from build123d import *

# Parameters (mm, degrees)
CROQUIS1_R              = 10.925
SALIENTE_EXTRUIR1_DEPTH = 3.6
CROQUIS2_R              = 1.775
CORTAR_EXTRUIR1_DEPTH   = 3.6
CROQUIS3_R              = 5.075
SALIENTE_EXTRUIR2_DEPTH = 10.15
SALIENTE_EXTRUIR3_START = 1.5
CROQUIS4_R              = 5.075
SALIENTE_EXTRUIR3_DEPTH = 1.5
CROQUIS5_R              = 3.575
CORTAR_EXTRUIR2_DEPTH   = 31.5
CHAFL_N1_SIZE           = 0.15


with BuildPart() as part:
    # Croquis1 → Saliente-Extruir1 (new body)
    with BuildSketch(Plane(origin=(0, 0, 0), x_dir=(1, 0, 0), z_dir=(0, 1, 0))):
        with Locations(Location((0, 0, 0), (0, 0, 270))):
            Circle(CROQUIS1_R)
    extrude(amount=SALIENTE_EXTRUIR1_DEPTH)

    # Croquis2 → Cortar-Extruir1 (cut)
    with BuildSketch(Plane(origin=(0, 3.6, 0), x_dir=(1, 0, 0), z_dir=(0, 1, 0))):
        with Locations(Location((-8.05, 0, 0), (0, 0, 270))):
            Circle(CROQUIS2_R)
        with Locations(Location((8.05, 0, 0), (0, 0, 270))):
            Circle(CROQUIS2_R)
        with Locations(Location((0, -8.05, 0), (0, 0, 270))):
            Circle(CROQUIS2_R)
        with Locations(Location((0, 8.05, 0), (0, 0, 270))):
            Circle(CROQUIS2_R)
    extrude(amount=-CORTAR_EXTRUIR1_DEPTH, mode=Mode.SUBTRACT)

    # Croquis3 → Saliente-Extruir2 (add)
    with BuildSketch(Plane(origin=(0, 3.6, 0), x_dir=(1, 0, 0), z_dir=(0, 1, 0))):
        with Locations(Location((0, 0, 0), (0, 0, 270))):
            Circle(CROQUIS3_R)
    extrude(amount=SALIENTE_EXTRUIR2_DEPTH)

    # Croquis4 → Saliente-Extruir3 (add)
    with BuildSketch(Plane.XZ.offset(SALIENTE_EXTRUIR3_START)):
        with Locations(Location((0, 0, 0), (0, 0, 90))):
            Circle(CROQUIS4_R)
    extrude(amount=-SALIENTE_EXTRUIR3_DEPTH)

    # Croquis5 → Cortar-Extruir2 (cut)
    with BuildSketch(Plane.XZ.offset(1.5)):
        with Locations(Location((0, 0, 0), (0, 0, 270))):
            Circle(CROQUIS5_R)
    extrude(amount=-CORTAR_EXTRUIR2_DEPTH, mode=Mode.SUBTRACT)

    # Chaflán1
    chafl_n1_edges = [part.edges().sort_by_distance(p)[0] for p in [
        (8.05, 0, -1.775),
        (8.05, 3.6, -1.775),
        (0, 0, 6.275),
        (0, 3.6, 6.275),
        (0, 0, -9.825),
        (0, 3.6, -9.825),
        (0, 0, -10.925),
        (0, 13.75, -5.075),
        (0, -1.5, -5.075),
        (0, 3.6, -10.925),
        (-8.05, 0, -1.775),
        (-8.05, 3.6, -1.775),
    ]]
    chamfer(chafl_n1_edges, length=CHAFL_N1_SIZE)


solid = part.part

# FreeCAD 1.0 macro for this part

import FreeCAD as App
import Part
import Sketcher
from FreeCAD import Vector


def edges_at(feature, points):
    """Names of the edges that pass closest to the given points."""
    edges = feature.Shape.Edges
    near = lambda p: min(range(len(edges)), key=lambda i: edges[i].distToShape(Part.Vertex(*p))[0])
    return sorted({f"Edge{near(p) + 1}" for p in points})

doc = App.newDocument("Part")
body = doc.addObject("PartDesign::Body", "Body")

sketch1 = body.newObject("Sketcher::SketchObject", "Sketch")
sketch1.AttachmentSupport = (doc.getObject("XZ_Plane"), [""])
sketch1.MapMode = "FlatFace"
sketch1.addGeometry(Part.Circle(Vector(0, 0, 0), Vector(0, 0, 1), 11), False)
sketch1.addConstraint(Sketcher.Constraint("Coincident", 0, 3, -1, 1))
sketch1.addConstraint(Sketcher.Constraint("Diameter", 0, 21.85))
pad1 = body.newObject("PartDesign::Pad", "Pad")
pad1.Profile = sketch1
pad1.Length = 3.6
pad1.Reversed = True

sketch2 = body.newObject("Sketcher::SketchObject", "Sketch001")
sketch2.AttachmentSupport = (doc.getObject("XZ_Plane"), [""])
sketch2.MapMode = "FlatFace"
sketch2.AttachmentOffset = App.Placement(Vector(0, 0, -3.6), App.Rotation())
sketch2.addGeometry(Part.Circle(Vector(-8.1, 0, 0), Vector(0, 0, 1), 1.8), False)
sketch2.addGeometry(Part.Circle(Vector(8.1, 0, 0), Vector(0, 0, 1), 1.8), False)
sketch2.addGeometry(Part.Circle(Vector(0, 8.1, 0), Vector(0, 0, 1), 1.8), False)
sketch2.addGeometry(Part.Circle(Vector(0, -8.1, 0), Vector(0, 0, 1), 1.8), False)
sketch2.addConstraint(Sketcher.Constraint("Equal", 0, 1))
sketch2.addConstraint(Sketcher.Constraint("Equal", 1, 2))
sketch2.addConstraint(Sketcher.Constraint("Equal", 2, 3))
sketch2.addConstraint(Sketcher.Constraint("Symmetric", 0, 3, 1, 3, -1, 1))
sketch2.addConstraint(Sketcher.Constraint("Symmetric", 2, 3, 3, 3, -1, 1))
sketch2.addConstraint(Sketcher.Constraint("PointOnObject", 0, 3, -1))
sketch2.addConstraint(Sketcher.Constraint("PointOnObject", 2, 3, -2))
sketch2.addConstraint(Sketcher.Constraint("Diameter", 0, 3.55))
sketch2.addConstraint(Sketcher.Constraint("DistanceX", 0, 3, 1, 3, 16.1))
sketch2.addConstraint(Sketcher.Constraint("DistanceY", 3, 3, 2, 3, 16.1))
pocket1 = body.newObject("PartDesign::Pocket", "Pocket")
pocket1.Profile = sketch2
pocket1.Length = 3.6
pocket1.Reversed = True

sketch3 = body.newObject("Sketcher::SketchObject", "Sketch002")
sketch3.AttachmentSupport = (doc.getObject("XZ_Plane"), [""])
sketch3.MapMode = "FlatFace"
sketch3.AttachmentOffset = App.Placement(Vector(0, 0, -3.6), App.Rotation())
sketch3.addGeometry(Part.Circle(Vector(0, 0, 0), Vector(0, 0, 1), 5), False)
sketch3.addConstraint(Sketcher.Constraint("Coincident", 0, 3, -1, 1))
sketch3.addConstraint(Sketcher.Constraint("Diameter", 0, 10.15))
pad2 = body.newObject("PartDesign::Pad", "Pad001")
pad2.Profile = sketch3
pad2.Length = 10.15
pad2.Reversed = True

sketch4 = body.newObject("Sketcher::SketchObject", "Sketch003")
sketch4.AttachmentSupport = (doc.getObject("XZ_Plane"), [""])
sketch4.MapMode = "FlatFace"
sketch4.AttachmentOffset = App.Placement(Vector(0, 0, 1.5), App.Rotation())
sketch4.addGeometry(Part.Circle(Vector(0, 0, 0), Vector(0, 0, 1), 5), False)
sketch4.addConstraint(Sketcher.Constraint("Coincident", 0, 3, -1, 1))
sketch4.addConstraint(Sketcher.Constraint("Diameter", 0, 10.15))
pad3 = body.newObject("PartDesign::Pad", "Pad002")
pad3.Profile = sketch4
pad3.Length = 1.5
pad3.Reversed = True

sketch5 = body.newObject("Sketcher::SketchObject", "Sketch004")
sketch5.AttachmentSupport = (doc.getObject("XZ_Plane"), [""])
sketch5.MapMode = "FlatFace"
sketch5.AttachmentOffset = App.Placement(Vector(0, 0, 1.5), App.Rotation())
sketch5.addGeometry(Part.Circle(Vector(0, 0, 0), Vector(0, 0, 1), 3.6), False)
sketch5.addConstraint(Sketcher.Constraint("Coincident", 0, 3, -1, 1))
sketch5.addConstraint(Sketcher.Constraint("Diameter", 0, 7.15))
pocket2 = body.newObject("PartDesign::Pocket", "Pocket001")
pocket2.Profile = sketch5
pocket2.Length = 31.5
doc.recompute()

chamfer = body.newObject("PartDesign::Chamfer", "Chamfer")
chamfer.Base = (pocket2, edges_at(pocket2, [
    (8.05, 0, -1.775),
    (8.05, 3.6, -1.775),
    (0, 0, 6.275),
    (0, 3.6, 6.275),
    (0, 0, -9.825),
    (0, 3.6, -9.825),
    (0, 0, -10.925),
    (0, 13.75, -5.075),
    (0, -1.5, -5.075),
    (0, 3.6, -10.925),
    (-8.05, 0, -1.775),
    (-8.05, 3.6, -1.775),
]))
chamfer.Size = 0.15

doc.recompute()
